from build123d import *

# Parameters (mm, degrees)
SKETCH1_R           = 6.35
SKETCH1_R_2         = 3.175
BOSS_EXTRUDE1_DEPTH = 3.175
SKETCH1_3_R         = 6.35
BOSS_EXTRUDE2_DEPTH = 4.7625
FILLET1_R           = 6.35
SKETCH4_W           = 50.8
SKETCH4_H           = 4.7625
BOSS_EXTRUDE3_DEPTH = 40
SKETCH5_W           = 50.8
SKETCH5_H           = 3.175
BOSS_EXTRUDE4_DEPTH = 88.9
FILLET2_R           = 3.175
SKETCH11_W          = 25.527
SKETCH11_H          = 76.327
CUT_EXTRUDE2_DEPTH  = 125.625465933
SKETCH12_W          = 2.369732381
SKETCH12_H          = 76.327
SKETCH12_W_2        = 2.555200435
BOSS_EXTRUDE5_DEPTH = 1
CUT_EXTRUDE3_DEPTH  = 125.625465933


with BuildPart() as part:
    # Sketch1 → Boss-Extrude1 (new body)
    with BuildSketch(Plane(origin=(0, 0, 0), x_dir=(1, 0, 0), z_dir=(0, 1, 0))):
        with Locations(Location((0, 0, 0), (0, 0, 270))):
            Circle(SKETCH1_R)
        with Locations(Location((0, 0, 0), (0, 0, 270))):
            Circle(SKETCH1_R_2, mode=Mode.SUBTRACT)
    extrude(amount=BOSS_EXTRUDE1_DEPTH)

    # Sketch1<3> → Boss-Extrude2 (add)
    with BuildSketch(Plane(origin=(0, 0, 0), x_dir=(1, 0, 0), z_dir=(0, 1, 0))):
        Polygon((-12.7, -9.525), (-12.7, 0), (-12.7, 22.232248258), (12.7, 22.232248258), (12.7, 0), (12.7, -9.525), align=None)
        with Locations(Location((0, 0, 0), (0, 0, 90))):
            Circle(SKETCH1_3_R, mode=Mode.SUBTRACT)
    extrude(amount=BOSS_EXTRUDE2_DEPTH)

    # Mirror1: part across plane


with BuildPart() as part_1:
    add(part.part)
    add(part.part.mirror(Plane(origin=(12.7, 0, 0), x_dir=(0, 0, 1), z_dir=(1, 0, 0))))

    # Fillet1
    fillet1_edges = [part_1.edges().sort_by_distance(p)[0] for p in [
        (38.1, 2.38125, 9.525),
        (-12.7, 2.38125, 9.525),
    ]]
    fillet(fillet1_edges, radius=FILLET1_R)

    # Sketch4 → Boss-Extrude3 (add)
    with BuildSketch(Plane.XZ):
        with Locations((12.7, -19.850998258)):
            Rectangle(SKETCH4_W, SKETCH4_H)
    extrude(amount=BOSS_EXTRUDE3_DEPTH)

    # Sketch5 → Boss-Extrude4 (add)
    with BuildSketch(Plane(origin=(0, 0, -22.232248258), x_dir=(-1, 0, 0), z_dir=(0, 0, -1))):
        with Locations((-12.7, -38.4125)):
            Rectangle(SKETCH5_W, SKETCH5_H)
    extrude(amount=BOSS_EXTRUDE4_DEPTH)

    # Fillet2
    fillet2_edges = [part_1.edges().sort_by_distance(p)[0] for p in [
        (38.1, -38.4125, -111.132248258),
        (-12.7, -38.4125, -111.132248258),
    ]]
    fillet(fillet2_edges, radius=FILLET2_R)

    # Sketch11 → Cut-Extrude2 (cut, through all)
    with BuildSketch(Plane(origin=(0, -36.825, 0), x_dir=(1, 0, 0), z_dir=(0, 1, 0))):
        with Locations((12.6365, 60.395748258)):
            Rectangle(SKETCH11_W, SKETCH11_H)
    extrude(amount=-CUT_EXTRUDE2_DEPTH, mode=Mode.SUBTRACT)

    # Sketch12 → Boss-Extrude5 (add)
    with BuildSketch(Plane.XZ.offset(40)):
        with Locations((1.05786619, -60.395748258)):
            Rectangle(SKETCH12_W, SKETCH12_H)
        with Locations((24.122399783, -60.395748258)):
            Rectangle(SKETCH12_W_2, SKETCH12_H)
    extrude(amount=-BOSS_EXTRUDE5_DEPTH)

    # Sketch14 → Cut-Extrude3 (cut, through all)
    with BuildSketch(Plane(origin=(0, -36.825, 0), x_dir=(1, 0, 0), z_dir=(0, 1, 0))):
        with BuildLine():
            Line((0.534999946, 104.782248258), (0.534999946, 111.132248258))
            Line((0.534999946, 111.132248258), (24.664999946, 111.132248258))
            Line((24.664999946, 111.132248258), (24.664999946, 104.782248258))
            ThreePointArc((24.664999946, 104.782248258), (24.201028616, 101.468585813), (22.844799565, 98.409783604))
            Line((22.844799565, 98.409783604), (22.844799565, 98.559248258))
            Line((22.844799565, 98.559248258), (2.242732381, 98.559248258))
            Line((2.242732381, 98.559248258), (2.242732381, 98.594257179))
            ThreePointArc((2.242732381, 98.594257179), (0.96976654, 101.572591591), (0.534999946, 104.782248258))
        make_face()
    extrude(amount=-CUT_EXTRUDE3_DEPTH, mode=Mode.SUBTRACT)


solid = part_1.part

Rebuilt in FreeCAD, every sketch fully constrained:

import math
import FreeCAD as App
import Part
import Sketcher
Q = App.Units.Quantity


def edges_at(feature, points):
    """Names of the edges that pass closest to the given points."""
    edges = feature.Shape.Edges
    near = lambda p: min(range(len(edges)), key=lambda i: edges[i].distToShape(Part.Vertex(*p))[0])
    return sorted({f"Edge{near(p) + 1}" for p in points})


def add_polygon(sketch, points):
    """Adds a closed chain of lines whose ends are joined by coincident constraints."""
    first, n = sketch.GeometryCount, len(points)
    for a, b in zip(points, points[1:] + points[:1]):
        sketch.addGeometry(Part.LineSegment(App.Vector(*a, 0), App.Vector(*b, 0)), False)
    for i in range(n):
        sketch.addConstraint(Sketcher.Constraint("Coincident", first + i, 2, first + (i + 1) % n, 1))

doc = App.newDocument("Part")
params = doc.addObject("Spreadsheet::Sheet", "Params")
for row, (alias, value) in enumerate([
    ("sketch1_diameter", "0.5 in"),
    ("sketch1_diameter2", "0.25 in"),
    ("pad1_length", "0.125 in"),
    ("sketch2_diameter", "0.5 in"),
    ("sketch2_width", "1 in"),
    ("pad2_length", "0.1875 in"),
    ("fillet_radius", "0.25 in"),
    ("sketch3_width", "2 in"),
    ("sketch3_height", "0.1875 in"),
    ("pad3_length", "40 mm"),
    ("sketch4_width", "2 in"),
    ("sketch4_height", "0.125 in"),
    ("pad4_length", "3.5 in"),
    ("fillet2_radius", "0.125 in"),
    ("sketch5_width", "1.005 in"),
    ("sketch5_height", "3.005 in"),
    ("sketch6_height", "3.005 in"),
    ("pad5_length", "1 mm"),
    ("sketch7_radius", "0.475 in"),
    ("sketch7_height", "0.25 in"),
], start=1):
    params.set(f"A{row}", alias)
    params.set(f"B{row}", "=" + value)
    params.setAlias(f"B{row}", alias)

body = doc.addObject("PartDesign::Body", "Body")

# Sketch on XZ plane
sketch1 = body.newObject("Sketcher::SketchObject", "Sketch")
sketch1.AttachmentSupport = (doc.getObject("XZ_Plane"), [""])
sketch1.MapMode = "FlatFace"
sketch1.addGeometry([
    Part.Circle(App.Vector(0, 0, 0), App.Vector(0, 0, 1), 6.3),
    Part.Circle(App.Vector(0, 0, 0), App.Vector(0, 0, 1), 3.2),
], False)
sketch1.addConstraint([
    Sketcher.Constraint("Coincident", 0, 3, -1, 1),
    Sketcher.Constraint("Coincident", 1, 3, -1, 1),
    Sketcher.Constraint("Diameter", 0, Q("0.5 in")),
    Sketcher.Constraint("Diameter", 1, Q("0.25 in")),
])
sketch1.setExpression("Constraints[2]", "Params.sketch1_diameter")
sketch1.setExpression("Constraints[3]", "Params.sketch1_diameter2")
pad1 = body.newObject("PartDesign::Pad", "Pad")
pad1.Profile = sketch1
pad1.setExpression("Length", "Params.pad1_length")
pad1.Reversed = True

# Sketch on XZ plane
sketch2 = body.newObject("Sketcher::SketchObject", "Sketch001")
sketch2.AttachmentSupport = (doc.getObject("XZ_Plane"), [""])
sketch2.MapMode = "FlatFace"
add_polygon(sketch2, [(-13, -22), (-13, 10), (13, 10), (13, -22)])  # lines 0-3
sketch2.addGeometry(Part.Circle(App.Vector(0, 0, 0), App.Vector(0, 0, 1), 6), False)  # 4
sketch2.addConstraint([
    Sketcher.Constraint("Vertical", 0),
    Sketcher.Constraint("Horizontal", 1),
    Sketcher.Constraint("Vertical", 2),
    Sketcher.Constraint("Horizontal", 3),
    Sketcher.Constraint("Coincident", 4, 3, -1, 1),
    Sketcher.Constraint("Diameter", 4, Q("0.5 in")),
    Sketcher.Constraint("DistanceX", 1, 1, 1, 2, Q("1 in")),
    Sketcher.Constraint("DistanceX", 0, 2, -1, 1, Q("0.5 in")),
    Sketcher.Constraint("DistanceY", -1, 1, 0, 2, Q("0.375 in")),
    Sketcher.Constraint("DistanceY", 0, 1, 0, 2, Q("31.757248 mm")),
])
sketch2.setExpression("Constraints[9]", "Params.sketch2_diameter")
sketch2.setExpression("Constraints[10]", "Params.sketch2_width")
pad2 = body.newObject("PartDesign::Pad", "Pad001")
pad2.Profile = sketch2
pad2.setExpression("Length", "Params.pad2_length")
pad2.Reversed = True
body2 = doc.addObject("PartDesign::Body", "Body001")
doc.recompute()

body2.BaseFeature = body
doc.recompute()

mirroring = doc.addObject("Part::Mirroring", "Mirroring")
mirroring.Source = body
mirroring.Base = App.Vector(12.7, 0, 0)
mirroring.Normal = App.Vector(1, 0, 0)
body3 = doc.addObject("PartDesign::Body", "Body002")
body3.BaseFeature = mirroring
boolean = body2.newObject("PartDesign::Boolean", "Boolean")
boolean.Type = "Fuse"
boolean.addObjects([body3])
doc.recompute()

fillet = body2.newObject("PartDesign::Fillet", "Fillet")
fillet.Base = (boolean, edges_at(boolean, [(38.1, 2.381, 9.525), (-12.7, 2.381, 9.525)]))
fillet.setExpression("Radius", "Params.fillet_radius")

# Sketch on XZ plane
sketch3 = body2.newObject("Sketcher::SketchObject", "Sketch002")
sketch3.AttachmentSupport = (doc.getObject("XZ_Plane001"), [""])
sketch3.MapMode = "FlatFace"
add_polygon(sketch3, [(-12.7, -17.5), (-12.7, -22.2), (38.1, -22.2), (38.1, -17.5)])  # lines 0-3
sketch3.addConstraint([
    Sketcher.Constraint("Vertical", 0),
    Sketcher.Constraint("Horizontal", 1),
    Sketcher.Constraint("Vertical", 2),
    Sketcher.Constraint("Horizontal", 3),
    Sketcher.Constraint("DistanceX", 1, 1, 1, 2, Q("2 in")),
    Sketcher.Constraint("DistanceX", 0, 2, -1, 1, Q("0.5 in")),
    Sketcher.Constraint("DistanceY", 0, 2, 0, 1, Q("0.1875 in")),
    Sketcher.Constraint("DistanceY", 0, 2, -1, 1, Q("22.232248 mm")),
])
sketch3.setExpression("Constraints[8]", "Params.sketch3_width")
sketch3.setExpression("Constraints[10]", "Params.sketch3_height")
pad3 = body2.newObject("PartDesign::Pad", "Pad002")
pad3.Profile = sketch3
pad3.setExpression("Length", "Params.pad3_length")

# Sketch on XY plane
sketch4 = body2.newObject("Sketcher::SketchObject", "Sketch003")
sketch4.AttachmentSupport = (doc.getObject("XY_Plane001"), [""])
sketch4.MapMode = "FlatFace"
sketch4.AttachmentOffset = App.Placement(App.Vector(0, 0, -22.232248), App.Rotation())
add_polygon(sketch4, [(38.1, -36.8), (38.1, -40), (-12.7, -40), (-12.7, -36.8)])  # lines 0-3
sketch4.addConstraint([
    Sketcher.Constraint("Vertical", 0),
    Sketcher.Constraint("Horizontal", 1),
    Sketcher.Constraint("Vertical", 2),
    Sketcher.Constraint("Horizontal", 3),
    Sketcher.Constraint("DistanceX", 1, 2, 1, 1, Q("2 in")),
    Sketcher.Constraint("DistanceX", -1, 1, 0, 2, Q("1.5 in")),
    Sketcher.Constraint("DistanceY", 0, 2, 0, 1, Q("0.125 in")),
    Sketcher.Constraint("DistanceY", 0, 2, -1, 1, Q("40 mm")),
])
sketch4.setExpression("Constraints[8]", "Params.sketch4_width")
sketch4.setExpression("Constraints[10]", "Params.sketch4_height")
pad4 = body2.newObject("PartDesign::Pad", "Pad003")
pad4.Profile = sketch4
pad4.setExpression("Length", "Params.pad4_length")
pad4.Reversed = True
doc.recompute()

fillet2 = body2.newObject("PartDesign::Fillet", "Fillet001")
fillet2.Base = (pad4, edges_at(pad4, [(38.1, -38.413, -111.132), (-12.7, -38.413, -111.132)]))
fillet2.setExpression("Radius", "Params.fillet2_radius")

# Sketch on XZ plane
sketch5 = body2.newObject("Sketcher::SketchObject", "Sketch004")
sketch5.AttachmentSupport = (doc.getObject("XZ_Plane001"), [""])
sketch5.MapMode = "FlatFace"
sketch5.AttachmentOffset = App.Placement(App.Vector(0, 0, 36.825), App.Rotation())
add_polygon(sketch5, [(0, -99), (0, -22), (25, -22), (25, -99)])  # lines 0-3
sketch5.addConstraint([
    Sketcher.Constraint("Vertical", 0),
    Sketcher.Constraint("Horizontal", 1),
    Sketcher.Constraint("Vertical", 2),
    Sketcher.Constraint("Horizontal", 3),
    Sketcher.Constraint("DistanceX", -1, 1, 1, 2, Q("1 in")),
    Sketcher.Constraint("DistanceX", 1, 1, 1, 2, Q("1.005 in")),
    Sketcher.Constraint("DistanceY", 0, 1, 0, 2, Q("3.005 in")),
    Sketcher.Constraint("DistanceY", 0, 2, -1, 1, Q("22.232248 mm")),
])
sketch5.setExpression("Constraints[9]", "Params.sketch5_width")
sketch5.setExpression("Constraints[10]", "Params.sketch5_height")
pocket1 = body2.newObject("PartDesign::Pocket", "Pocket")
pocket1.Profile = sketch5
pocket1.Type = "ThroughAll"
pocket1.Reversed = True

# Sketch on XZ plane
sketch6 = body2.newObject("Sketcher::SketchObject", "Sketch005")
sketch6.AttachmentSupport = (doc.getObject("XZ_Plane001"), [""])
sketch6.MapMode = "FlatFace"
sketch6.AttachmentOffset = App.Placement(App.Vector(0, 0, 40), App.Rotation())
add_polygon(sketch6, [(-0.1, -22.2), (-0.1, -98.6), (2.2, -98.6), (2.2, -22.2)])  # lines 0-3
add_polygon(sketch6, [(22.8, -22.2), (22.8, -98.6), (25.4, -98.6), (25.4, -22.2)])  # lines 4-7
sketch6.addConstraint([
    Sketcher.Constraint("Vertical", 0),
    Sketcher.Constraint("Horizontal", 1),
    Sketcher.Constraint("Vertical", 2),
    Sketcher.Constraint("Horizontal", 3),
    Sketcher.Constraint("Vertical", 4),
    Sketcher.Constraint("Horizontal", 5),
    Sketcher.Constraint("Vertical", 6),
    Sketcher.Constraint("Horizontal", 7),
    Sketcher.Constraint("Horizontal", 1, 2, 4, 2),
    Sketcher.Constraint("Horizontal", 3, 2, 6, 2),
    Sketcher.Constraint("DistanceX", -1, 1, 5, 2, Q("1 in")),
    Sketcher.Constraint("DistanceY", 0, 2, 0, 1, Q("3.005 in")),
    Sketcher.Constraint("DistanceX", 0, 2, -1, 1, Q("0.005 in")),
    Sketcher.Constraint("DistanceX", 5, 1, 5, 2, Q("2.5552 mm")),
    Sketcher.Constraint("DistanceX", 1, 1, 1, 2, Q("2.369732 mm")),
    Sketcher.Constraint("DistanceY", 0, 2, -1, 1, Q("98.559248 mm")),
])
sketch6.setExpression("Constraints[19]", "Params.sketch6_height")
pad5 = body2.newObject("PartDesign::Pad", "Pad004")
pad5.Profile = sketch6
pad5.setExpression("Length", "Params.pad5_length")
pad5.Reversed = True

# Sketch on XZ plane
sketch7 = body2.newObject("Sketcher::SketchObject", "Sketch006")
sketch7.AttachmentSupport = (doc.getObject("XZ_Plane001"), [""])
sketch7.MapMode = "FlatFace"
sketch7.AttachmentOffset = App.Placement(App.Vector(0, 0, 36.825), App.Rotation())
sketch7.addGeometry([
    Part.LineSegment(App.Vector(0.535, -111.132, 0), App.Vector(0.535, -104.782, 0)),  # 0
    Part.ArcOfCircle(Part.Circle(App.Vector(12.6, -104.782, 0), App.Vector(0, 0, 1), 12.065), math.radians(149), math.radians(180)),  # 1
    Part.LineSegment(App.Vector(2.243, -98.594, 0), App.Vector(2.243, -98.559, 0)),  # 2
    Part.LineSegment(App.Vector(2.243, -98.559, 0), App.Vector(22.845, -98.559, 0)),  # 3
    Part.LineSegment(App.Vector(22.845, -98.559, 0), App.Vector(22.845, -98.41, 0)),  # 4
    Part.ArcOfCircle(Part.Circle(App.Vector(12.6, -104.782, 0), App.Vector(0, 0, 1), 12.065), math.radians(0), math.radians(32)),  # 5
    Part.LineSegment(App.Vector(24.665, -104.782, 0), App.Vector(24.665, -111.132, 0)),  # 6
    Part.LineSegment(App.Vector(24.665, -111.132, 0), App.Vector(0.535, -111.132, 0)),  # 7
], False)
sketch7.addConstraint([
    Sketcher.Constraint("Tangent", 0, 2, 1, 2),
    Sketcher.Constraint("Coincident", 1, 1, 2, 1),
    Sketcher.Constraint("Coincident", 2, 2, 3, 1),
    Sketcher.Constraint("Coincident", 3, 2, 4, 1),
    Sketcher.Constraint("Coincident", 4, 2, 5, 2),
    Sketcher.Constraint("Tangent", 5, 1, 6, 1),
    Sketcher.Constraint("Coincident", 6, 2, 7, 1),
    Sketcher.Constraint("Coincident", 7, 2, 0, 1),
    Sketcher.Constraint("Vertical", 0),
    Sketcher.Constraint("Vertical", 2),
    Sketcher.Constraint("Horizontal", 3),
    Sketcher.Constraint("Vertical", 4),
    Sketcher.Constraint("Vertical", 6),
    Sketcher.Constraint("Horizontal", 7),
    Sketcher.Constraint("Coincident", 5, 3, 1, 3),
    Sketcher.Constraint("Equal", 1, 5),
    Sketcher.Constraint("Radius", 1, Q("0.475 in")),
    Sketcher.Constraint("DistanceY", 0, 1, 0, 2, Q("0.25 in")),
    Sketcher.Constraint("DistanceY", 0, 2, 2, 2, Q("0.245 in")),
    Sketcher.Constraint("DistanceY", 2, 1, 2, 2, Q("0.035009 mm")),
    Sketcher.Constraint("DistanceX", -1, 1, 1, 3, Q("12.6 mm")),
    Sketcher.Constraint("DistanceX", -1, 1, 3, 2, Q("22.8448 mm")),
    Sketcher.Constraint("DistanceY", 1, 3, -1, 1, Q("104.782248 mm")),
])
sketch7.setExpression("Constraints[16]", "Params.sketch7_radius")
sketch7.setExpression("Constraints[17]", "Params.sketch7_height")
pocket2 = body2.newObject("PartDesign::Pocket", "Pocket001")
pocket2.Profile = sketch7
pocket2.Type = "ThroughAll"
pocket2.Reversed = True
mirroring.Visibility = False

doc.recompute()
